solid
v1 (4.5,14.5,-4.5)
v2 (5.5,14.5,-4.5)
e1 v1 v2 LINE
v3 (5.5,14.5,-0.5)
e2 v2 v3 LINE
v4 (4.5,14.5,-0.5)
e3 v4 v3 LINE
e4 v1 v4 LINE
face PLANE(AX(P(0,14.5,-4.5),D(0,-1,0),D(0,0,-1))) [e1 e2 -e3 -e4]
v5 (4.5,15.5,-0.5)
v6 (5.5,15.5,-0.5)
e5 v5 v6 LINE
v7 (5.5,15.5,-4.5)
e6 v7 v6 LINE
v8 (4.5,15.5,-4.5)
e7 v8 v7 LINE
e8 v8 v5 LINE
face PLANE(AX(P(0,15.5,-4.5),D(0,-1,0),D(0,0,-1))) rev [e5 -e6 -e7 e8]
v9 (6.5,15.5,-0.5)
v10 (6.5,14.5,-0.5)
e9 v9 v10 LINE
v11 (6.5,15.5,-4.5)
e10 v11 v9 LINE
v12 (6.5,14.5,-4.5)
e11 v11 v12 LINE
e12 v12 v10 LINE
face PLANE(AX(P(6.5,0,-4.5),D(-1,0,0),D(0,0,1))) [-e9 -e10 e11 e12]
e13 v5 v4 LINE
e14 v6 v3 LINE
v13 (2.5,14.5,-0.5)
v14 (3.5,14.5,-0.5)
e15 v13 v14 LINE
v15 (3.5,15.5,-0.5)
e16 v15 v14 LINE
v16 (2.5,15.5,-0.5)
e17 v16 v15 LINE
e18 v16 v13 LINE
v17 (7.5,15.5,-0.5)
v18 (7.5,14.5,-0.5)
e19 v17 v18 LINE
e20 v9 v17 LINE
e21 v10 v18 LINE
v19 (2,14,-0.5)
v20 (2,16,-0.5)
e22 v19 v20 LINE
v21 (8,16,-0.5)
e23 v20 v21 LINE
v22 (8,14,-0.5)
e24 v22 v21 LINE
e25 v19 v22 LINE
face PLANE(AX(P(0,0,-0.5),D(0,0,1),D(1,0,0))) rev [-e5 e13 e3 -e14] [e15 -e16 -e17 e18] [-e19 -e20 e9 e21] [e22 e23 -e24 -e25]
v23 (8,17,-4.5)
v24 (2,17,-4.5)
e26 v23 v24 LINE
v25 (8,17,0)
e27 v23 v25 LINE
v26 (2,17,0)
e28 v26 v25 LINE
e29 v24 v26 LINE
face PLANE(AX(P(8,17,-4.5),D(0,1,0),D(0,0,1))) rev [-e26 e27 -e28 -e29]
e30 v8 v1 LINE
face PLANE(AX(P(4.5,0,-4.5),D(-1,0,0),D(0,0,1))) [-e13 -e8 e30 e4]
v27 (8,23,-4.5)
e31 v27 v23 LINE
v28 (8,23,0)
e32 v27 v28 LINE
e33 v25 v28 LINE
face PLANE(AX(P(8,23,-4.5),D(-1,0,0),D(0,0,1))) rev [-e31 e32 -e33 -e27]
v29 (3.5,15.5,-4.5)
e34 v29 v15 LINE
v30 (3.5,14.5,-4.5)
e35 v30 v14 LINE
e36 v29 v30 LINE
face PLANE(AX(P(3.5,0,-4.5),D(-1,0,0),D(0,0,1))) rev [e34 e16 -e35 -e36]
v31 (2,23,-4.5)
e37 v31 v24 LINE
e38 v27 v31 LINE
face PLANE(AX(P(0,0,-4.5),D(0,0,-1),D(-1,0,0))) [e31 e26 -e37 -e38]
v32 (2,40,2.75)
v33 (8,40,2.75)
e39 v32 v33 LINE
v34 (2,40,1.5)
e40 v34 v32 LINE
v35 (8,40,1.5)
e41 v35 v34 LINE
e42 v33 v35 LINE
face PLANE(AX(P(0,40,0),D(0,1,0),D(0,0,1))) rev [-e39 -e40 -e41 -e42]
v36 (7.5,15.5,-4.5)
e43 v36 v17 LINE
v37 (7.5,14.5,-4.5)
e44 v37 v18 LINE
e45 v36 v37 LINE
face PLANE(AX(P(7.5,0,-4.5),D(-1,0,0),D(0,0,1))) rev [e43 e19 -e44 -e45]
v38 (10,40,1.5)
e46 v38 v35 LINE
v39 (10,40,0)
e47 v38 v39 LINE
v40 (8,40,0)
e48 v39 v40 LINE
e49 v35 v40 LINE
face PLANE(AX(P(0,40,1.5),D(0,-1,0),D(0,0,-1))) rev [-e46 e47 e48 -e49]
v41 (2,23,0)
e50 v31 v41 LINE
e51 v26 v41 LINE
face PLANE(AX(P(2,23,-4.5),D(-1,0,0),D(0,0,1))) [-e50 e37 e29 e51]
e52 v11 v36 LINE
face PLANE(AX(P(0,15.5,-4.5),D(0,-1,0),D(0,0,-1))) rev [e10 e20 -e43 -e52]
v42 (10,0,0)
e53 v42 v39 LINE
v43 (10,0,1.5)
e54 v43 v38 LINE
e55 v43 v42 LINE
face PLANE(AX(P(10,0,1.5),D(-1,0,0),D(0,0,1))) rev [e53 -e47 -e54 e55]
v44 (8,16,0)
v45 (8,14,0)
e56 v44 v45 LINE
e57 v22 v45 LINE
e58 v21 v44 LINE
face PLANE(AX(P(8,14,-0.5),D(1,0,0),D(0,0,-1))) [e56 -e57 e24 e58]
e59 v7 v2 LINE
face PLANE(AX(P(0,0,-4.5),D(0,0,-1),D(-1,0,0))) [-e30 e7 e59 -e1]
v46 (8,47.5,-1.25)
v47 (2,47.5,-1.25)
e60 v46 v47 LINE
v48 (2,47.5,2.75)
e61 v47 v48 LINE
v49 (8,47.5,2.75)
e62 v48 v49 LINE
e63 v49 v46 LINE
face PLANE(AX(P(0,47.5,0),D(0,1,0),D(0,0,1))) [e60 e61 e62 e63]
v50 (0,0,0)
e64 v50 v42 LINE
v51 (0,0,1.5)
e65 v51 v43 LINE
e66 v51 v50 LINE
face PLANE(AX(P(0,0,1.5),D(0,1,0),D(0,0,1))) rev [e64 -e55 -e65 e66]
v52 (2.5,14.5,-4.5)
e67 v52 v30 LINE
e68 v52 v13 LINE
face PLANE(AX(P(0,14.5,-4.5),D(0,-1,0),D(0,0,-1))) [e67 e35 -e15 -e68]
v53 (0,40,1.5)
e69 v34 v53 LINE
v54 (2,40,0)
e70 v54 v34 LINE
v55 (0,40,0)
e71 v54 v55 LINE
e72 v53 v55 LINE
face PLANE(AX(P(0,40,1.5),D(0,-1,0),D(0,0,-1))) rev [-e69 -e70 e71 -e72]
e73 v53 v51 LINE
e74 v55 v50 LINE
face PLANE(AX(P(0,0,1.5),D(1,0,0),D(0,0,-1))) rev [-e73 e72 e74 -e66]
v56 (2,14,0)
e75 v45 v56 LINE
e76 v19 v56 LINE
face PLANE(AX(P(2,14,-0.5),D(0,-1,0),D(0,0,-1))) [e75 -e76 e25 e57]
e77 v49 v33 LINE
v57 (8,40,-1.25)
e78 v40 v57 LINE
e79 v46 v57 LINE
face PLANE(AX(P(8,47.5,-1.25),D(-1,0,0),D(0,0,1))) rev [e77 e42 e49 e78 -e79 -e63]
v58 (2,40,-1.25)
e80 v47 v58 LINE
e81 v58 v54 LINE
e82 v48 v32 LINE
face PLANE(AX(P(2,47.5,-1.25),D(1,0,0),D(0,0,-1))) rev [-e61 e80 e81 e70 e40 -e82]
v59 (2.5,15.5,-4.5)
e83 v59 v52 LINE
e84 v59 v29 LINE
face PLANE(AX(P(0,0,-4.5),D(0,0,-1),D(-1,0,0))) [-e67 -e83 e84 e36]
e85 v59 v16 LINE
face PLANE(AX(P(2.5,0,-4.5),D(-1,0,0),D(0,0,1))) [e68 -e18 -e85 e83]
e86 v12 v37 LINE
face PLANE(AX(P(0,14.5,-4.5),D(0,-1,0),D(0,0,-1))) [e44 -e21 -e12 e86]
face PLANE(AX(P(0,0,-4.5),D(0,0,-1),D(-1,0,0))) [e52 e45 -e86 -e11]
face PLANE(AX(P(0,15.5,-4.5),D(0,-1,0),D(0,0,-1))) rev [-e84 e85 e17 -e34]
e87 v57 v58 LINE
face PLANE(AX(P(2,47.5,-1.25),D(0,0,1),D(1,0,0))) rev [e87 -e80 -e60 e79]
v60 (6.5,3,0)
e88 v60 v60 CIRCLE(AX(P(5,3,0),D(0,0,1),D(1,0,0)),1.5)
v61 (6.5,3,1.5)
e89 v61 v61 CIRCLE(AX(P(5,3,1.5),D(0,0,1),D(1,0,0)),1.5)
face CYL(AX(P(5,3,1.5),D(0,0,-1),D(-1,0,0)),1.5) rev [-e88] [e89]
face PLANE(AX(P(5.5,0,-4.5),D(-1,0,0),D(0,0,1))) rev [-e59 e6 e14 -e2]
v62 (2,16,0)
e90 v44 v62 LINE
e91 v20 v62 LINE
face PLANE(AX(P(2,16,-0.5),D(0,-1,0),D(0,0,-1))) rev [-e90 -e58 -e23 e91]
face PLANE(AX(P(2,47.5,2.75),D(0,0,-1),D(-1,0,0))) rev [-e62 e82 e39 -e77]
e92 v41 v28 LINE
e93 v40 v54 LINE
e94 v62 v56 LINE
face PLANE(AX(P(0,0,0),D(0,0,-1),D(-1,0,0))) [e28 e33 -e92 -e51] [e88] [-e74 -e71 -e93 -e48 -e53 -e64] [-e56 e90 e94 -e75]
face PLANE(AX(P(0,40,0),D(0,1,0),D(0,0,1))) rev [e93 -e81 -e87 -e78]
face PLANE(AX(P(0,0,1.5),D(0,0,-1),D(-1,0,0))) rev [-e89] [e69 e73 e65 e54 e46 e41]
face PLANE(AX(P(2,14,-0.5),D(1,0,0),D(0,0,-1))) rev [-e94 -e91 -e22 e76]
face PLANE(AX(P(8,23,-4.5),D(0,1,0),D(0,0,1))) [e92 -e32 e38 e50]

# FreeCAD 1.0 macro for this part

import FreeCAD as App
import Part
import Sketcher
from FreeCAD import Vector

doc = App.newDocument("Part")
body = doc.addObject("PartDesign::Body", "Body")

# Sketch on XY plane
sketch1 = body.newObject("Sketcher::SketchObject", "Sketch")
sketch1.AttachmentSupport = (doc.getObject("XY_Plane"), [""])
sketch1.MapMode = "FlatFace"
sketch1.addGeometry(Part.LineSegment(Vector(0, 40, 0), Vector(0, 0, 0)), False)
sketch1.addGeometry(Part.LineSegment(Vector(0, 0, 0), Vector(10, 0, 0)), False)
sketch1.addGeometry(Part.LineSegment(Vector(10, 0, 0), Vector(10, 40, 0)), False)
sketch1.addGeometry(Part.LineSegment(Vector(10, 40, 0), Vector(0, 40, 0)), False)
sketch1.addGeometry(Part.Circle(Vector(5, 3, 0), Vector(0, 0, 1), 1.5), False)
sketch1.addConstraint(Sketcher.Constraint("Coincident", 0, 2, 1, 1))
sketch1.addConstraint(Sketcher.Constraint("Coincident", 1, 2, 2, 1))
sketch1.addConstraint(Sketcher.Constraint("Coincident", 2, 2, 3, 1))
sketch1.addConstraint(Sketcher.Constraint("Coincident", 3, 2, 0, 1))
sketch1.addConstraint(Sketcher.Constraint("Vertical", 0))
sketch1.addConstraint(Sketcher.Constraint("Horizontal", 1))
sketch1.addConstraint(Sketcher.Constraint("Vertical", 2))
sketch1.addConstraint(Sketcher.Constraint("Horizontal", 3))
sketch1.addConstraint(Sketcher.Constraint("Coincident", 0, 2, -1, 1))
sketch1.addConstraint(Sketcher.Constraint("Diameter", 4, 3.0))
sketch1.addConstraint(Sketcher.Constraint("DistanceX", 1, 1, 1, 2, 10.0))
sketch1.addConstraint(Sketcher.Constraint("DistanceY", 0, 2, 0, 1, 40.0))
sketch1.addConstraint(Sketcher.Constraint("DistanceX", -1, 1, 4, 3, 5.0))
sketch1.addConstraint(Sketcher.Constraint("DistanceY", -1, 1, 4, 3, 3.0))
pad1 = body.newObject("PartDesign::Pad", "Pad")
pad1.Profile = sketch1
pad1.Length = 1.5

# Sketch on XY plane
sketch2 = body.newObject("Sketcher::SketchObject", "Sketch001")
sketch2.AttachmentSupport = (doc.getObject("XY_Plane"), [""])
sketch2.MapMode = "FlatFace"
sketch2.AttachmentOffset = App.Placement(Vector(0, 0, 1.5), App.Rotation())
sketch2.addGeometry(Part.LineSegment(Vector(2, 23, 0), Vector(2, 17, 0)), False)
sketch2.addGeometry(Part.LineSegment(Vector(2, 17, 0), Vector(8, 17, 0)), False)
sketch2.addGeometry(Part.LineSegment(Vector(8, 17, 0), Vector(8, 23, 0)), False)
sketch2.addGeometry(Part.LineSegment(Vector(8, 23, 0), Vector(2, 23, 0)), False)
sketch2.addConstraint(Sketcher.Constraint("Coincident", 0, 2, 1, 1))
sketch2.addConstraint(Sketcher.Constraint("Coincident", 1, 2, 2, 1))
sketch2.addConstraint(Sketcher.Constraint("Coincident", 2, 2, 3, 1))
sketch2.addConstraint(Sketcher.Constraint("Coincident", 3, 2, 0, 1))
sketch2.addConstraint(Sketcher.Constraint("Vertical", 0))
sketch2.addConstraint(Sketcher.Constraint("Horizontal", 1))
sketch2.addConstraint(Sketcher.Constraint("Vertical", 2))
sketch2.addConstraint(Sketcher.Constraint("Horizontal", 3))
sketch2.addConstraint(Sketcher.Constraint("Equal", 3, 0))
sketch2.addConstraint(Sketcher.Constraint("DistanceX", 1, 1, 1, 2, 6.0))
sketch2.addConstraint(Sketcher.Constraint("DistanceX", -1, 1, 0, 2, 2.0))
sketch2.addConstraint(Sketcher.Constraint("DistanceY", -1, 1, 0, 2, 17.0))
pad2 = body.newObject("PartDesign::Pad", "Pad001")
pad2.Profile = sketch2
pad2.Length = 6
pad2.Reversed = True

# Sketch on XY plane
sketch3 = body.newObject("Sketcher::SketchObject", "Sketch002")
sketch3.AttachmentSupport = (doc.getObject("XY_Plane"), [""])
sketch3.MapMode = "FlatFace"
sketch3.AttachmentOffset = App.Placement(Vector(0, 0, 1.5), App.Rotation())
sketch3.addGeometry(Part.LineSegment(Vector(2, 16, 0), Vector(2, 14, 0)), False)
sketch3.addGeometry(Part.LineSegment(Vector(2, 14, 0), Vector(8, 14, 0)), False)
sketch3.addGeometry(Part.LineSegment(Vector(8, 14, 0), Vector(8, 16, 0)), False)
sketch3.addGeometry(Part.LineSegment(Vector(8, 16, 0), Vector(2, 16, 0)), False)
sketch3.addConstraint(Sketcher.Constraint("Coincident", 0, 2, 1, 1))
sketch3.addConstraint(Sketcher.Constraint("Coincident", 1, 2, 2, 1))
sketch3.addConstraint(Sketcher.Constraint("Coincident", 2, 2, 3, 1))
sketch3.addConstraint(Sketcher.Constraint("Coincident", 3, 2, 0, 1))
sketch3.addConstraint(Sketcher.Constraint("Vertical", 0))
sketch3.addConstraint(Sketcher.Constraint("Horizontal", 1))
sketch3.addConstraint(Sketcher.Constraint("Vertical", 2))
sketch3.addConstraint(Sketcher.Constraint("Horizontal", 3))
sketch3.addConstraint(Sketcher.Constraint("DistanceX", 1, 1, 1, 2, 6.0))
sketch3.addConstraint(Sketcher.Constraint("DistanceY", 0, 2, 0, 1, 2.0))
sketch3.addConstraint(Sketcher.Constraint("DistanceX", -1, 1, 0, 2, 2.0))
sketch3.addConstraint(Sketcher.Constraint("DistanceY", -1, 1, 0, 2, 14.0))
pad3 = body.newObject("PartDesign::Pad", "Pad002")
pad3.Profile = sketch3
pad3.Length = 2
pad3.Reversed = True

# Sketch on XY plane
sketch4 = body.newObject("Sketcher::SketchObject", "Sketch003")
sketch4.AttachmentSupport = (doc.getObject("XY_Plane"), [""])
sketch4.MapMode = "FlatFace"
sketch4.AttachmentOffset = App.Placement(Vector(0, 0, -0.5), App.Rotation())
sketch4.addGeometry(Part.LineSegment(Vector(5.5, 15.5, 0), Vector(5.5, 14.5, 0)), False)
sketch4.addGeometry(Part.LineSegment(Vector(5.5, 14.5, 0), Vector(4.5, 14.5, 0)), False)
sketch4.addGeometry(Part.LineSegment(Vector(4.5, 14.5, 0), Vector(4.5, 15.5, 0)), False)
sketch4.addGeometry(Part.LineSegment(Vector(4.5, 15.5, 0), Vector(5.5, 15.5, 0)), False)
sketch4.addGeometry(Part.LineSegment(Vector(7.5, 15.5, 0), Vector(7.5, 14.5, 0)), False)
sketch4.addGeometry(Part.LineSegment(Vector(7.5, 14.5, 0), Vector(6.5, 14.5, 0)), False)
sketch4.addGeometry(Part.LineSegment(Vector(6.5, 14.5, 0), Vector(6.5, 15.5, 0)), False)
sketch4.addGeometry(Part.LineSegment(Vector(6.5, 15.5, 0), Vector(7.5, 15.5, 0)), False)
sketch4.addGeometry(Part.LineSegment(Vector(3.5, 15.5, 0), Vector(3.5, 14.5, 0)), False)
sketch4.addGeometry(Part.LineSegment(Vector(3.5, 14.5, 0), Vector(2.5, 14.5, 0)), False)
sketch4.addGeometry(Part.LineSegment(Vector(2.5, 14.5, 0), Vector(2.5, 15.5, 0)), False)
sketch4.addGeometry(Part.LineSegment(Vector(2.5, 15.5, 0), Vector(3.5, 15.5, 0)), False)
sketch4.addConstraint(Sketcher.Constraint("Coincident", 0, 2, 1, 1))
sketch4.addConstraint(Sketcher.Constraint("Coincident", 1, 2, 2, 1))
sketch4.addConstraint(Sketcher.Constraint("Coincident", 2, 2, 3, 1))
sketch4.addConstraint(Sketcher.Constraint("Coincident", 3, 2, 0, 1))
sketch4.addConstraint(Sketcher.Constraint("Coincident", 4, 2, 5, 1))
sketch4.addConstraint(Sketcher.Constraint("Coincident", 5, 2, 6, 1))
sketch4.addConstraint(Sketcher.Constraint("Coincident", 6, 2, 7, 1))
sketch4.addConstraint(Sketcher.Constraint("Coincident", 7, 2, 4, 1))
sketch4.addConstraint(Sketcher.Constraint("Coincident", 8, 2, 9, 1))
sketch4.addConstraint(Sketcher.Constraint("Coincident", 9, 2, 10, 1))
sketch4.addConstraint(Sketcher.Constraint("Coincident", 10, 2, 11, 1))
sketch4.addConstraint(Sketcher.Constraint("Coincident", 11, 2, 8, 1))
sketch4.addConstraint(Sketcher.Constraint("Vertical", 0))
sketch4.addConstraint(Sketcher.Constraint("Horizontal", 1))
sketch4.addConstraint(Sketcher.Constraint("Vertical", 2))
sketch4.addConstraint(Sketcher.Constraint("Horizontal", 3))
sketch4.addConstraint(Sketcher.Constraint("Vertical", 4))
sketch4.addConstraint(Sketcher.Constraint("Horizontal", 5))
sketch4.addConstraint(Sketcher.Constraint("Vertical", 6))
sketch4.addConstraint(Sketcher.Constraint("Horizontal", 7))
sketch4.addConstraint(Sketcher.Constraint("Vertical", 8))
sketch4.addConstraint(Sketcher.Constraint("Horizontal", 9))
sketch4.addConstraint(Sketcher.Constraint("Vertical", 10))
sketch4.addConstraint(Sketcher.Constraint("Horizontal", 11))
sketch4.addConstraint(Sketcher.Constraint("Horizontal", 1, 2, 4, 2))
sketch4.addConstraint(Sketcher.Constraint("Horizontal", 3, 2, 6, 2))
sketch4.addConstraint(Sketcher.Constraint("Horizontal", 5, 2, 8, 2))
sketch4.addConstraint(Sketcher.Constraint("Horizontal", 7, 2, 10, 2))
sketch4.addConstraint(Sketcher.Constraint("Equal", 3, 5))
sketch4.addConstraint(Sketcher.Constraint("Equal", 7, 9))
sketch4.addConstraint(Sketcher.Constraint("Equal", 11, 0))
sketch4.addConstraint(Sketcher.Constraint("DistanceX", 1, 2, 1, 1, 1.0))
sketch4.addConstraint(Sketcher.Constraint("DistanceX", 0, 2, 4, 2, 2.0))
sketch4.addConstraint(Sketcher.Constraint("DistanceX", 8, 2, 1, 2, 1.0))
sketch4.addConstraint(Sketcher.Constraint("DistanceX", -1, 1, 0, 2, 5.5))
sketch4.addConstraint(Sketcher.Constraint("DistanceY", -1, 1, 0, 2, 14.5))
pad4 = body.newObject("PartDesign::Pad", "Pad003")
pad4.Profile = sketch4
pad4.Length = 4
pad4.Reversed = True

# Sketch on XZ plane
sketch5 = body.newObject("Sketcher::SketchObject", "Sketch004")
sketch5.AttachmentSupport = (doc.getObject("XZ_Plane"), [""])
sketch5.MapMode = "FlatFace"
sketch5.AttachmentOffset = App.Placement(Vector(0, 0, -40), App.Rotation())
sketch5.addGeometry(Part.LineSegment(Vector(2, -1.2, 0), Vector(2, 2.8, 0)), False)
sketch5.addGeometry(Part.LineSegment(Vector(2, 2.8, 0), Vector(8, 2.8, 0)), False)
sketch5.addGeometry(Part.LineSegment(Vector(8, 2.8, 0), Vector(8, -1.2, 0)), False)
sketch5.addGeometry(Part.LineSegment(Vector(8, -1.2, 0), Vector(2, -1.2, 0)), False)
sketch5.addConstraint(Sketcher.Constraint("Coincident", 0, 2, 1, 1))
sketch5.addConstraint(Sketcher.Constraint("Coincident", 1, 2, 2, 1))
sketch5.addConstraint(Sketcher.Constraint("Coincident", 2, 2, 3, 1))
sketch5.addConstraint(Sketcher.Constraint("Coincident", 3, 2, 0, 1))
sketch5.addConstraint(Sketcher.Constraint("Vertical", 0))
sketch5.addConstraint(Sketcher.Constraint("Horizontal", 1))
sketch5.addConstraint(Sketcher.Constraint("Vertical", 2))
sketch5.addConstraint(Sketcher.Constraint("Horizontal", 3))
sketch5.addConstraint(Sketcher.Constraint("DistanceX", 1, 1, 1, 2, 6.0))
sketch5.addConstraint(Sketcher.Constraint("DistanceY", 0, 1, 0, 2, 4.0))
sketch5.addConstraint(Sketcher.Constraint("DistanceX", -1, 1, 0, 2, 2.0))
sketch5.addConstraint(Sketcher.Constraint("DistanceY", -1, 1, 0, 2, 2.75))
pad5 = body.newObject("PartDesign::Pad", "Pad004")
pad5.Profile = sketch5
pad5.Length = 7.5
pad5.Reversed = True

doc.recompute()
